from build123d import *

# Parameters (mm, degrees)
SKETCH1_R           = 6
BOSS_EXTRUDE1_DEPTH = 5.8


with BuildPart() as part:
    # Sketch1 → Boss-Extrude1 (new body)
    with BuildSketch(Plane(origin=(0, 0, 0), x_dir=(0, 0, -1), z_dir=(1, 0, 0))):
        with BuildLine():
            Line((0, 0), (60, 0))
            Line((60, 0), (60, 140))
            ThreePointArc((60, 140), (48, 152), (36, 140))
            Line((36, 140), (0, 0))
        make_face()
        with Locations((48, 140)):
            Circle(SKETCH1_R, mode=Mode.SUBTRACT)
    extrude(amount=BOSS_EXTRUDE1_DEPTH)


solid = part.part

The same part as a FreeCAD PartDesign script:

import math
import FreeCAD as App
import Part
import Sketcher
Q = App.Units.Quantity

doc = App.newDocument("Part")
body = doc.addObject("PartDesign::Body", "Body")

# Sketch on YZ plane
sketch1 = body.newObject("Sketcher::SketchObject", "Sketch")
sketch1.AttachmentSupport = (doc.getObject("YZ_Plane"), [""])
sketch1.MapMode = "FlatFace"
sketch1.addGeometry(Part.LineSegment(App.Vector(0, 0, 0), App.Vector(0, -60, 0)), False)
sketch1.addGeometry(Part.LineSegment(App.Vector(0, -60, 0), App.Vector(140, -60, 0)), False)
sketch1.addGeometry(Part.ArcOfCircle(Part.Circle(App.Vector(140, -48, 0), App.Vector(0, 0, 1), 12), math.radians(-90), math.radians(90)), False)
sketch1.addGeometry(Part.LineSegment(App.Vector(140, -36, 0), App.Vector(0, 0, 0)), False)
sketch1.addGeometry(Part.Circle(App.Vector(140, -48, 0), App.Vector(0, 0, 1), 6), False)
sketch1.addConstraint(Sketcher.Constraint("Coincident", 0, 2, 1, 1))
sketch1.addConstraint(Sketcher.Constraint("Tangent", 1, 2, 2, 1))
sketch1.addConstraint(Sketcher.Constraint("Coincident", 2, 2, 3, 1))
sketch1.addConstraint(Sketcher.Constraint("Coincident", 3, 2, 0, 1))
sketch1.addConstraint(Sketcher.Constraint("Vertical", 0))
sketch1.addConstraint(Sketcher.Constraint("Horizontal", 1))
sketch1.addConstraint(Sketcher.Constraint("Coincident", 3, 2, -1, 1))
sketch1.addConstraint(Sketcher.Constraint("Coincident", 4, 3, 2, 3))
sketch1.addConstraint(Sketcher.Constraint("Vertical", 1, 2, 2, 2))
sketch1.addConstraint(Sketcher.Constraint("Diameter", 4, Q("12 mm")))
sketch1.addConstraint(Sketcher.Constraint("Radius", 2, Q("12 mm")))
sketch1.addConstraint(Sketcher.Constraint("DistanceX", 1, 1, 1, 2, Q("140 mm")))
sketch1.addConstraint(Sketcher.Constraint("DistanceY", 0, 2, 0, 1, Q("60 mm")))
pad1 = body.newObject("PartDesign::Pad", "Pad")
pad1.Profile = sketch1
pad1.Length = 5.8

doc.recompute()
